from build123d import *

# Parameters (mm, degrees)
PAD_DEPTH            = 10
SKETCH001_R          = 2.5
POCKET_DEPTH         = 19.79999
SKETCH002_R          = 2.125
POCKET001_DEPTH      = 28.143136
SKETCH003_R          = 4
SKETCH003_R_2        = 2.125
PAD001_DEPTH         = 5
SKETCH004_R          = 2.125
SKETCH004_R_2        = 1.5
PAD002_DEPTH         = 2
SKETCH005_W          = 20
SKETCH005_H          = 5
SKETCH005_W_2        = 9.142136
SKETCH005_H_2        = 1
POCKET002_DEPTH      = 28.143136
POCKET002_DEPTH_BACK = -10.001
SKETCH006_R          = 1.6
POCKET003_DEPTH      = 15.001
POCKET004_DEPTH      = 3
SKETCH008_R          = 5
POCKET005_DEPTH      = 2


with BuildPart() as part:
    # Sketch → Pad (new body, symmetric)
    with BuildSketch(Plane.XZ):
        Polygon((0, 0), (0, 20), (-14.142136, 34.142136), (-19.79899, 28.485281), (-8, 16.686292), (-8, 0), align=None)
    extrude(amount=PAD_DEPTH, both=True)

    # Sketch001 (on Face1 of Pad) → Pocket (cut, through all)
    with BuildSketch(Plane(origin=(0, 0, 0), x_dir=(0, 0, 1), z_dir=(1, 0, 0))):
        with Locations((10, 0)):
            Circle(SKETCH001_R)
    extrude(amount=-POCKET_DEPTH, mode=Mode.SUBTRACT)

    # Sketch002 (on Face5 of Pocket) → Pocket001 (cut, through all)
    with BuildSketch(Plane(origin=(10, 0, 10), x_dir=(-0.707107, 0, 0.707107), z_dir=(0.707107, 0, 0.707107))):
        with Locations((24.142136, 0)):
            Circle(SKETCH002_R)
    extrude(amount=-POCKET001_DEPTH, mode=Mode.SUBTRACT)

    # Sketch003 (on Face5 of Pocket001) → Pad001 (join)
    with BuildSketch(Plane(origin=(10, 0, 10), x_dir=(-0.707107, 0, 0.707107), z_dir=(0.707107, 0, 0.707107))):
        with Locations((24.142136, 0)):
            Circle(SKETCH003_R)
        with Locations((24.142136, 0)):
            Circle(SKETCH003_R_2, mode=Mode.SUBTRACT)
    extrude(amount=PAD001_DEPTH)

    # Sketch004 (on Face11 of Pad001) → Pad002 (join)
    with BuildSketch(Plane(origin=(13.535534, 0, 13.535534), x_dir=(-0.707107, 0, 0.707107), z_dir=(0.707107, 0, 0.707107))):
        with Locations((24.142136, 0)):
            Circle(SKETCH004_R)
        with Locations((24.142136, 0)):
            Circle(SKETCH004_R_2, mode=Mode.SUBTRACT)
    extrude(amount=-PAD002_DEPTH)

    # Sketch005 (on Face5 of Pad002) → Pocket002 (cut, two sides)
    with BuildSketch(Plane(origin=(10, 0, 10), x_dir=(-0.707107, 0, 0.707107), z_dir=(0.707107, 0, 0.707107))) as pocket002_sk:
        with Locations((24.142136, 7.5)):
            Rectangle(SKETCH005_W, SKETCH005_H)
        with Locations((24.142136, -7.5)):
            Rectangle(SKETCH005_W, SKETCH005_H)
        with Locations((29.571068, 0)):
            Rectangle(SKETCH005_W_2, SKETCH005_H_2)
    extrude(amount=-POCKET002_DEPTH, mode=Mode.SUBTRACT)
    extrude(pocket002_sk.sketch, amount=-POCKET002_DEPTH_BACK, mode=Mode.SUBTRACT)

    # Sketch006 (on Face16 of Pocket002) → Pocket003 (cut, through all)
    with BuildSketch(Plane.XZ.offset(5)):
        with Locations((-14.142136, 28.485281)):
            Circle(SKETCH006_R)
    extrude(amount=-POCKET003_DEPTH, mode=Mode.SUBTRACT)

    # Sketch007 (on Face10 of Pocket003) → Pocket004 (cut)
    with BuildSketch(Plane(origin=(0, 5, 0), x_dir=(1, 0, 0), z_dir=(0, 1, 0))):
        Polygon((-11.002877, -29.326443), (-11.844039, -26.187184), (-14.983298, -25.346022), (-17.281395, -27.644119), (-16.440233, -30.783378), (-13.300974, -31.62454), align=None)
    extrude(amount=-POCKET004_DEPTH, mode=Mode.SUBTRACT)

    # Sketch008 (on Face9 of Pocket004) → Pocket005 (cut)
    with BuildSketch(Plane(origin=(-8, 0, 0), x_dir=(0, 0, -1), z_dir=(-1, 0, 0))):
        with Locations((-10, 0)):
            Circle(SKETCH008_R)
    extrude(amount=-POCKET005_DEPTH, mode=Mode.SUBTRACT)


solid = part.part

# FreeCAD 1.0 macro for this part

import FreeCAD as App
import Part
import Sketcher
Q = App.Units.Quantity


def add_polygon(sketch, points):
    """Adds a closed chain of lines whose ends are joined by coincident constraints."""
    first, n = sketch.GeometryCount, len(points)
    for a, b in zip(points, points[1:] + points[:1]):
        sketch.addGeometry(Part.LineSegment(App.Vector(*a, 0), App.Vector(*b, 0)), False)
    for i in range(n):
        sketch.addConstraint(Sketcher.Constraint("Coincident", first + i, 2, first + (i + 1) % n, 1))

doc = App.newDocument("Part")
body = doc.addObject("PartDesign::Body", "Body")

# Sketch on XZ plane
sketch1 = doc.addObject("Sketcher::SketchObject", "Sketch")
body.addObject(sketch1)
sketch1.AttachmentSupport = (doc.XZ_Plane, [""])
sketch1.MapMode = "FlatFace"
add_polygon(sketch1, [(0, 0), (0, 20), (-14, 34), (-20, 28), (-8, 17), (-8, 0)])  # lines 0-5
sketch1.addConstraint(Sketcher.Constraint("Vertical", 0))
sketch1.addConstraint(Sketcher.Constraint("Vertical", 4))
sketch1.addConstraint(Sketcher.Constraint("Horizontal", 5))
sketch1.addConstraint(Sketcher.Constraint("Coincident", 5, 2, -1, 1))
sketch1.addConstraint(Sketcher.Constraint("Perpendicular", 1, 2))
sketch1.addConstraint(Sketcher.Constraint("Perpendicular", 2, 3))
sketch1.addConstraint(Sketcher.Constraint("DistanceX", 5, 1, 5, 2, 8.0))
sketch1.addConstraint(Sketcher.Constraint("DistanceY", 0, 1, 0, 2, 20.0))
sketch1.addConstraint(Sketcher.Constraint("Angle", 1, Q("135 deg")))
sketch1.addConstraint(Sketcher.Constraint("Distance", 1, 20.000001))
sketch1.addConstraint(Sketcher.Constraint("Distance", 2, 8.0))
pad1 = doc.addObject("PartDesign::Pad", "Pad")
body.addObject(pad1)
pad1.Profile = sketch1
pad1.Length = 20
pad1.Midplane = True

# Sketch on YZ plane
sketch2 = doc.addObject("Sketcher::SketchObject", "Sketch001")
body.addObject(sketch2)
sketch2.AttachmentSupport = (doc.YZ_Plane, [""])
sketch2.MapMode = "FlatFace"
sketch2.addGeometry(Part.Circle(App.Vector(0, 10, 0), App.Vector(0, 0, 1), 2.5), False)
sketch2.addConstraint(Sketcher.Constraint("PointOnObject", 0, 3, -2))
sketch2.addConstraint(Sketcher.Constraint("Diameter", 0, 5.0))
sketch2.addConstraint(Sketcher.Constraint("DistanceY", -1, 1, 0, 3, 10.0))
pocket1 = doc.addObject("PartDesign::Pocket", "Pocket")
body.addObject(pocket1)
pocket1.Profile = sketch2
pocket1.Type = "ThroughAll"

# Sketch on an angled plane
sketch3 = doc.addObject("Sketcher::SketchObject", "Sketch002")
body.addObject(sketch3)
sketch3.Placement = App.Placement(App.Vector(10, 0, 10), App.Rotation(App.Vector(-0.707106781, 0, 0.707106781), App.Vector(0, -0.999999999, 0), App.Vector(0.707106781, 0, 0.707106781), "ZXY"))
sketch3.addGeometry(Part.Circle(App.Vector(24.1, 0, 0), App.Vector(0, 0, 1), 2.1), False)
sketch3.addConstraint(Sketcher.Constraint("PointOnObject", 0, 3, -1))
sketch3.addConstraint(Sketcher.Constraint("Diameter", 0, 4.25))
sketch3.addConstraint(Sketcher.Constraint("DistanceX", -1, 1, 0, 3, 24.142136))
pocket2 = doc.addObject("PartDesign::Pocket", "Pocket001")
body.addObject(pocket2)
pocket2.Profile = sketch3
pocket2.Type = "ThroughAll"

# Sketch on an angled plane
sketch4 = doc.addObject("Sketcher::SketchObject", "Sketch003")
body.addObject(sketch4)
sketch4.Placement = App.Placement(App.Vector(10, 0, 10), App.Rotation(App.Vector(-0.707106781, 0, 0.707106781), App.Vector(0, -0.999999999, 0), App.Vector(0.707106781, 0, 0.707106781), "ZXY"))
sketch4.addGeometry(Part.Circle(App.Vector(24.1, 0, 0), App.Vector(0, 0, 1), 4), False)
sketch4.addGeometry(Part.Circle(App.Vector(24.1, 0, 0), App.Vector(0, 0, 1), 2.1), False)
sketch4.addConstraint(Sketcher.Constraint("Coincident", 1, 3, 0, 3))
sketch4.addConstraint(Sketcher.Constraint("PointOnObject", 0, 3, -1))
sketch4.addConstraint(Sketcher.Constraint("Diameter", 0, 8.0))
sketch4.addConstraint(Sketcher.Constraint("Diameter", 1, 4.25))
sketch4.addConstraint(Sketcher.Constraint("DistanceX", -1, 1, 0, 3, 24.142136))
pad2 = doc.addObject("PartDesign::Pad", "Pad001")
body.addObject(pad2)
pad2.Profile = sketch4
pad2.Length = 5

# Sketch on an angled plane
sketch5 = doc.addObject("Sketcher::SketchObject", "Sketch004")
body.addObject(sketch5)
sketch5.Placement = App.Placement(App.Vector(13.535534, 0, 13.535534), App.Rotation(App.Vector(-0.707106781, 0, 0.707106781), App.Vector(0, -0.999999999, 0), App.Vector(0.707106781, 0, 0.707106781), "ZXY"))
sketch5.addGeometry(Part.Circle(App.Vector(24.1, 0, 0), App.Vector(0, 0, 1), 2.1), False)
sketch5.addGeometry(Part.Circle(App.Vector(24.1, 0, 0), App.Vector(0, 0, 1), 1.5), False)
sketch5.addConstraint(Sketcher.Constraint("Coincident", 1, 3, 0, 3))
sketch5.addConstraint(Sketcher.Constraint("PointOnObject", 0, 3, -1))
sketch5.addConstraint(Sketcher.Constraint("Diameter", 1, 3.0))
sketch5.addConstraint(Sketcher.Constraint("Diameter", 0, 4.25))
sketch5.addConstraint(Sketcher.Constraint("DistanceX", -1, 1, 0, 3, 24.142136))
pad3 = doc.addObject("PartDesign::Pad", "Pad002")
body.addObject(pad3)
pad3.Profile = sketch5
pad3.Length = 2
pad3.Reversed = True

# Sketch on an angled plane
sketch6 = doc.addObject("Sketcher::SketchObject", "Sketch005")
body.addObject(sketch6)
sketch6.Placement = App.Placement(App.Vector(10, 0, 10), App.Rotation(App.Vector(-0.707106781, 0, 0.707106781), App.Vector(0, -0.999999999, 0), App.Vector(0.707106781, 0, 0.707106781), "ZXY"))
add_polygon(sketch6, [(14.1, 10), (14.1, 5), (34.1, 5), (34.1, 10)])  # lines 0-3
add_polygon(sketch6, [(14.1, -5), (14.1, -10), (34.1, -10), (34.1, -5)])  # lines 4-7
add_polygon(sketch6, [(25, 0.5), (25, -0.5), (34.1, -0.5), (34.1, 0.5)])  # lines 8-11
sketch6.addConstraint(Sketcher.Constraint("Vertical", 0))
sketch6.addConstraint(Sketcher.Constraint("Horizontal", 1))
sketch6.addConstraint(Sketcher.Constraint("Vertical", 2))
sketch6.addConstraint(Sketcher.Constraint("Horizontal", 3))
sketch6.addConstraint(Sketcher.Constraint("Vertical", 4))
sketch6.addConstraint(Sketcher.Constraint("Horizontal", 5))
sketch6.addConstraint(Sketcher.Constraint("Vertical", 6))
sketch6.addConstraint(Sketcher.Constraint("Horizontal", 7))
sketch6.addConstraint(Sketcher.Constraint("Vertical", 8))
sketch6.addConstraint(Sketcher.Constraint("Horizontal", 9))
sketch6.addConstraint(Sketcher.Constraint("Vertical", 10))
sketch6.addConstraint(Sketcher.Constraint("Horizontal", 11))
sketch6.addConstraint(Sketcher.Constraint("Symmetric", 3, 2, 4, 2, -1))
sketch6.addConstraint(Sketcher.Constraint("Symmetric", 1, 2, 6, 2, -1))
sketch6.addConstraint(Sketcher.Constraint("Vertical", 6, 2, 9, 2))
sketch6.addConstraint(Sketcher.Constraint("DistanceX", 1, 1, 1, 2, 20.0))
sketch6.addConstraint(Sketcher.Constraint("DistanceY", 0, 2, 0, 1, 5.0))
sketch6.addConstraint(Sketcher.Constraint("DistanceY", 8, 2, 8, 1, 1.0))
sketch6.addConstraint(Sketcher.Constraint("DistanceY", -1, 1, 0, 2, 5.0))
sketch6.addConstraint(Sketcher.Constraint("DistanceX", -1, 1, 8, 2, 25.0))
sketch6.addConstraint(Sketcher.Constraint("DistanceY", 8, 2, -1, 1, 0.5))
sketch6.addConstraint(Sketcher.Constraint("DistanceX", 9, 1, 9, 2, 9.142136))
pocket3 = doc.addObject("PartDesign::Pocket", "Pocket002")
body.addObject(pocket3)
pocket3.Profile = sketch6
pocket3.Type = "ThroughAll"
pocket3.Midplane = True

# Sketch on XZ plane
sketch7 = doc.addObject("Sketcher::SketchObject", "Sketch006")
body.addObject(sketch7)
sketch7.AttachmentSupport = (doc.XZ_Plane, [""])
sketch7.MapMode = "FlatFace"
sketch7.AttachmentOffset = App.Placement(App.Vector(0, 0, 5), App.Rotation())
sketch7.addGeometry(Part.Circle(App.Vector(-14.1, 28.5, 0), App.Vector(0, 0, 1), 1.6), False)
sketch7.addConstraint(Sketcher.Constraint("Diameter", 0, 3.2))
sketch7.addConstraint(Sketcher.Constraint("DistanceY", -1, 1, 0, 3, 28.485281))
sketch7.addConstraint(Sketcher.Constraint("DistanceX", 0, 3, -1, 1, 14.142136))
pocket4 = doc.addObject("PartDesign::Pocket", "Pocket003")
body.addObject(pocket4)
pocket4.Profile = sketch7
pocket4.Type = "ThroughAll"

# Sketch on XZ plane
sketch8 = doc.addObject("Sketcher::SketchObject", "Sketch007")
body.addObject(sketch8)
sketch8.AttachmentSupport = (doc.XZ_Plane, [""])
sketch8.MapMode = "FlatFace"
sketch8.AttachmentOffset = App.Placement(App.Vector(0, 0, -5), App.Rotation())
add_polygon(sketch8, [(-11, 29.3), (-11.8, 26.2), (-15, 25.3), (-17.3, 27.6), (-16.4, 30.8), (-13.3, 31.6)])  # lines 0-5
sketch8.addConstraint(Sketcher.Constraint("Parallel", 0, 3))
sketch8.addConstraint(Sketcher.Constraint("Parallel", 1, 4))
sketch8.addConstraint(Sketcher.Constraint("Parallel", 2, 5))
sketch8.addConstraint(Sketcher.Constraint("Equal", 0, 1))
sketch8.addConstraint(Sketcher.Constraint("Equal", 1, 2))
sketch8.addConstraint(Sketcher.Constraint("Equal", 2, 3))
sketch8.addConstraint(Sketcher.Constraint("Angle", 0, Q("-105.000001 deg")))
sketch8.addConstraint(Sketcher.Constraint("Angle", 1, Q("-164.999999 deg")))
sketch8.addConstraint(Sketcher.Constraint("Angle", 2, Q("135 deg")))
sketch8.addConstraint(Sketcher.Constraint("Distance", 0, 3.25))
sketch8.addConstraint(Sketcher.Constraint("DistanceX", 0, 2, -1, 1, 11.844039))
sketch8.addConstraint(Sketcher.Constraint("DistanceY", -1, 1, 2, 2, 27.644119))
pocket5 = doc.addObject("PartDesign::Pocket", "Pocket004")
body.addObject(pocket5)
pocket5.Profile = sketch8
pocket5.Length = 3
pocket5.Reversed = True

# Sketch on YZ plane
sketch9 = doc.addObject("Sketcher::SketchObject", "Sketch008")
body.addObject(sketch9)
sketch9.AttachmentSupport = (doc.YZ_Plane, [""])
sketch9.MapMode = "FlatFace"
sketch9.AttachmentOffset = App.Placement(App.Vector(0, 0, -8), App.Rotation())
sketch9.addGeometry(Part.Circle(App.Vector(0, 10, 0), App.Vector(0, 0, 1), 5), False)
sketch9.addConstraint(Sketcher.Constraint("PointOnObject", 0, 3, -2))
sketch9.addConstraint(Sketcher.Constraint("Diameter", 0, 10.0))
sketch9.addConstraint(Sketcher.Constraint("DistanceY", -1, 1, 0, 3, 10.0))
pocket6 = doc.addObject("PartDesign::Pocket", "Pocket005")
body.addObject(pocket6)
pocket6.Profile = sketch9
pocket6.Length = 2
pocket6.Reversed = True

doc.recompute()
